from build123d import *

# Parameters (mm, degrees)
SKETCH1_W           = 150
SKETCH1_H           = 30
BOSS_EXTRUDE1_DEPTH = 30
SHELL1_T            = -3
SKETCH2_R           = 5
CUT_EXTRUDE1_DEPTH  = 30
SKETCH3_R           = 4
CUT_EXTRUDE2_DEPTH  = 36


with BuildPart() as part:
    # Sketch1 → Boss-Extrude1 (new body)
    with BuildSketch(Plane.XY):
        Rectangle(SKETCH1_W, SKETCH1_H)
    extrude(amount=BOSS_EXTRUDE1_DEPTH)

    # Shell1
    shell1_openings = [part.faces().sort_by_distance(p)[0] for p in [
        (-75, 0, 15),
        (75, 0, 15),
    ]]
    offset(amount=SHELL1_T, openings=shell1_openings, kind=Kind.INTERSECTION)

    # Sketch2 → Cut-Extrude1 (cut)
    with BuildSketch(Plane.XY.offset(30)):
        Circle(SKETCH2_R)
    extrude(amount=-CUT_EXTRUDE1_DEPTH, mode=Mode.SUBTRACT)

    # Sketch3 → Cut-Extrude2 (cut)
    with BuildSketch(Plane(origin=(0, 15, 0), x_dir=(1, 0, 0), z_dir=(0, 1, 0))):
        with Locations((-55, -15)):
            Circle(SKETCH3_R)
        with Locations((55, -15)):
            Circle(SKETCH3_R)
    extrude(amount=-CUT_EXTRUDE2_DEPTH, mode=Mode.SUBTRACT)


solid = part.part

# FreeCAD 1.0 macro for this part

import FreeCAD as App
import Part
import Sketcher
Q = App.Units.Quantity


def faces_at(feature, points):
    """Names of the faces that lie closest to the given points."""
    faces = feature.Shape.Faces
    near = lambda p: min(range(len(faces)), key=lambda i: faces[i].distToShape(Part.Vertex(*p))[0])
    return sorted({f"Face{near(p) + 1}" for p in points})

doc = App.newDocument("Part")
body = doc.addObject("PartDesign::Body", "Body")

# Sketch on XY plane
sketch1 = doc.addObject("Sketcher::SketchObject", "Sketch")
body.addObject(sketch1)
sketch1.AttachmentSupport = (doc.XY_Plane, [""])
sketch1.MapMode = "FlatFace"
sketch1.addGeometry(Part.LineSegment(App.Vector(-75, 15, 0), App.Vector(-75, -15, 0)), False)
sketch1.addGeometry(Part.LineSegment(App.Vector(-75, -15, 0), App.Vector(75, -15, 0)), False)
sketch1.addGeometry(Part.LineSegment(App.Vector(75, -15, 0), App.Vector(75, 15, 0)), False)
sketch1.addGeometry(Part.LineSegment(App.Vector(75, 15, 0), App.Vector(-75, 15, 0)), False)
sketch1.addConstraint(Sketcher.Constraint("Coincident", 0, 2, 1, 1))
sketch1.addConstraint(Sketcher.Constraint("Coincident", 1, 2, 2, 1))
sketch1.addConstraint(Sketcher.Constraint("Coincident", 2, 2, 3, 1))
sketch1.addConstraint(Sketcher.Constraint("Coincident", 3, 2, 0, 1))
sketch1.addConstraint(Sketcher.Constraint("Vertical", 0))
sketch1.addConstraint(Sketcher.Constraint("Horizontal", 1))
sketch1.addConstraint(Sketcher.Constraint("Vertical", 2))
sketch1.addConstraint(Sketcher.Constraint("Horizontal", 3))
sketch1.addConstraint(Sketcher.Constraint("Symmetric", 0, 2, 2, 2, -1, 1))
sketch1.addConstraint(Sketcher.Constraint("DistanceX", 1, 1, 1, 2, Q("150 mm")))
sketch1.addConstraint(Sketcher.Constraint("DistanceY", 0, 2, 0, 1, Q("30 mm")))
pad1 = doc.addObject("PartDesign::Pad", "Pad")
body.addObject(pad1)
pad1.Profile = sketch1
pad1.Length = 30
doc.recompute()

thickness = doc.addObject("PartDesign::Thickness", "Thickness")
body.addObject(thickness)
thickness.Base = (pad1, faces_at(pad1, [(-75, 0, 15), (75, 0, 15)]))
thickness.Value = 3
thickness.Reversed = True
thickness.Join = "Intersection"

# Sketch on XY plane
sketch2 = doc.addObject("Sketcher::SketchObject", "Sketch001")
body.addObject(sketch2)
sketch2.AttachmentSupport = (doc.XY_Plane, [""])
sketch2.MapMode = "FlatFace"
sketch2.AttachmentOffset = App.Placement(App.Vector(0, 0, 30), App.Rotation())
sketch2.addGeometry(Part.Circle(App.Vector(0, 0, 0), App.Vector(0, 0, 1), 5), False)
sketch2.addConstraint(Sketcher.Constraint("Coincident", 0, 3, -1, 1))
sketch2.addConstraint(Sketcher.Constraint("Diameter", 0, Q("10 mm")))
pocket1 = doc.addObject("PartDesign::Pocket", "Pocket")
body.addObject(pocket1)
pocket1.Profile = sketch2
pocket1.Length = 30

# Sketch on XZ plane
sketch3 = doc.addObject("Sketcher::SketchObject", "Sketch002")
body.addObject(sketch3)
sketch3.AttachmentSupport = (doc.XZ_Plane, [""])
sketch3.MapMode = "FlatFace"
sketch3.AttachmentOffset = App.Placement(App.Vector(0, 0, -15), App.Rotation())
sketch3.addGeometry(Part.Circle(App.Vector(-55, 15, 0), App.Vector(0, 0, 1), 4), False)
sketch3.addGeometry(Part.Circle(App.Vector(55, 15, 0), App.Vector(0, 0, 1), 4), False)
sketch3.addConstraint(Sketcher.Constraint("Equal", 0, 1))
sketch3.addConstraint(Sketcher.Constraint("Symmetric", 0, 3, 1, 3, -2))
sketch3.addConstraint(Sketcher.Constraint("Diameter", 0, Q("8 mm")))
sketch3.addConstraint(Sketcher.Constraint("DistanceX", 0, 3, -1, 1, Q("55 mm")))
sketch3.addConstraint(Sketcher.Constraint("DistanceY", -1, 1, 0, 3, Q("15 mm")))
pocket2 = doc.addObject("PartDesign::Pocket", "Pocket001")
body.addObject(pocket2)
pocket2.Profile = sketch3
pocket2.Length = 36
pocket2.Reversed = True

doc.recompute()
